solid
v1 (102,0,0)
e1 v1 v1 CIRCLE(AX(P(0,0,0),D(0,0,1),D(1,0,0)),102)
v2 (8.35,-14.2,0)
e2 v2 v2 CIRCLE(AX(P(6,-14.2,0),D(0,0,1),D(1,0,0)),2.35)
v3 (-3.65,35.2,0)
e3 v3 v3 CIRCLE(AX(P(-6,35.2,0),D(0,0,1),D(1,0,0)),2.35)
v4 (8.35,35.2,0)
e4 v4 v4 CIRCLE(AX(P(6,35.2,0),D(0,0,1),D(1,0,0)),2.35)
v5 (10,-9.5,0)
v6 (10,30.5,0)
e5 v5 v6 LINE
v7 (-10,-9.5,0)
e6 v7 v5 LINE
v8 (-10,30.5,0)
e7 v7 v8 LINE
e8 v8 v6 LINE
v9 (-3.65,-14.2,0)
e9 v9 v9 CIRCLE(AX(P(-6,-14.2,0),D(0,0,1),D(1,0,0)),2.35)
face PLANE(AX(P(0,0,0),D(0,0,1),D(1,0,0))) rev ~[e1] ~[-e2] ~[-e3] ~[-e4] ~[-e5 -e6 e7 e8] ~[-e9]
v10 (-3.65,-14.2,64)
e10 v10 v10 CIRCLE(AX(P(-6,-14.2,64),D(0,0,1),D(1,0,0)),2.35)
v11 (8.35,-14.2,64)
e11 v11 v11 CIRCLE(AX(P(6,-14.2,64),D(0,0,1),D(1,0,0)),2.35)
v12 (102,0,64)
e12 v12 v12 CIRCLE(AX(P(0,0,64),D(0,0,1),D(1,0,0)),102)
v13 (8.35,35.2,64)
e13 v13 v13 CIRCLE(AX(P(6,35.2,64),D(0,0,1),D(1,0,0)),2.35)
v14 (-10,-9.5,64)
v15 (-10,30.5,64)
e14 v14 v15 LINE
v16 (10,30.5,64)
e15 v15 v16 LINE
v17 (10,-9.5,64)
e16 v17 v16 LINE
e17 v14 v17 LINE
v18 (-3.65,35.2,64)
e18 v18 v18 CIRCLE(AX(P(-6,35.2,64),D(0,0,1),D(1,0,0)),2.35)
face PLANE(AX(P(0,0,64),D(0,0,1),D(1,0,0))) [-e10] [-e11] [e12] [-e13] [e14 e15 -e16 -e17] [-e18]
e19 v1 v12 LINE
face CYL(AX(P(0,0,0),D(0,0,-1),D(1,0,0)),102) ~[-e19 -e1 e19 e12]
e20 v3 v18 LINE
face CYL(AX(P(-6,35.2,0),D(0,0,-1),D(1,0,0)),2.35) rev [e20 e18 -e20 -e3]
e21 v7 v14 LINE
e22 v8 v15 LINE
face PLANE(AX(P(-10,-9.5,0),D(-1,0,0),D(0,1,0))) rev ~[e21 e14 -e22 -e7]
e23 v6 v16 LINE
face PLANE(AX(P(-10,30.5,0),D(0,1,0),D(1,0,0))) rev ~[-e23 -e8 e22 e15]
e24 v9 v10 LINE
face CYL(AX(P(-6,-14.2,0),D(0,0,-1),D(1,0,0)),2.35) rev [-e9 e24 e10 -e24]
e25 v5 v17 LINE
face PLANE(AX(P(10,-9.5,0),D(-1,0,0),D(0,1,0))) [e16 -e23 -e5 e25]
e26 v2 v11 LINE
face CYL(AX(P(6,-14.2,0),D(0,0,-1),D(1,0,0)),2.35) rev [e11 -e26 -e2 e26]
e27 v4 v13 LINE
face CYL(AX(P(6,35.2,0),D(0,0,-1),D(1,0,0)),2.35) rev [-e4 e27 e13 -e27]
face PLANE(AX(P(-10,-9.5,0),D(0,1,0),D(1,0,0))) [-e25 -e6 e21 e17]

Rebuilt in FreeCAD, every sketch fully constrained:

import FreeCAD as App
import Part
import Sketcher

V = App.Vector

doc = App.newDocument("Part")
params = doc.addObject("Spreadsheet::Sheet", "Params")
for row, (alias, value) in enumerate([
    ("sketch1_diameter", "204 mm"),
    ("sketch1_diameter2", "4.7 mm"),
    ("sketch1_width", "20 mm"),
    ("sketch1_height", "40 mm"),
    ("pad1_length", "64 mm"),
], start=1):
    params.set(f"A{row}", alias)
    params.set(f"B{row}", "=" + value)
    params.setAlias(f"B{row}", alias)

body = doc.addObject("PartDesign::Body", "Body")

# Sketch on XY plane
sketch1 = body.newObject("Sketcher::SketchObject", "Sketch")
sketch1.AttachmentSupport = (doc.getObject("XY_Plane"), [""])
sketch1.MapMode = "FlatFace"
sketch1.addGeometry([
    Part.Circle(V(0, 0, 0), V(0, 0, 1), 102),  # 0
    Part.Circle(V(-6, -14.2, 0), V(0, 0, 1), 2.4),  # 1
    Part.Circle(V(6, -14.2, 0), V(0, 0, 1), 2.4),  # 2
    Part.LineSegment(V(10, -9.5, 0), V(-10, -9.5, 0)),  # 3
    Part.LineSegment(V(-10, -9.5, 0), V(-10, 30.5, 0)),  # 4
    Part.LineSegment(V(-10, 30.5, 0), V(10, 30.5, 0)),  # 5
    Part.LineSegment(V(10, 30.5, 0), V(10, -9.5, 0)),  # 6
    Part.Circle(V(-6, 35.2, 0), V(0, 0, 1), 2.4),  # 7
    Part.Circle(V(6, 35.2, 0), V(0, 0, 1), 2.4),  # 8
], False)
sketch1.addConstraint([
    Sketcher.Constraint("Coincident", 3, 2, 4, 1),
    Sketcher.Constraint("Coincident", 4, 2, 5, 1),
    Sketcher.Constraint("Coincident", 5, 2, 6, 1),
    Sketcher.Constraint("Coincident", 6, 2, 3, 1),
    Sketcher.Constraint("Horizontal", 3),
    Sketcher.Constraint("Vertical", 4),
    Sketcher.Constraint("Horizontal", 5),
    Sketcher.Constraint("Vertical", 6),
    Sketcher.Constraint("Coincident", 0, 3, -1, 1),
    Sketcher.Constraint("Equal", 1, 2),
    Sketcher.Constraint("Equal", 2, 7),
    Sketcher.Constraint("Equal", 7, 8),
    Sketcher.Constraint("Symmetric", 1, 3, 2, 3, -2),
    Sketcher.Constraint("Symmetric", 7, 3, 8, 3, -2),
    Sketcher.Constraint("Vertical", 1, 3, 7, 3),
    Sketcher.Constraint("Diameter", 0, 204.0),
    Sketcher.Constraint("Diameter", 1, 4.7),
    Sketcher.Constraint("DistanceX", 3, 2, 3, 1, 20.0),
    Sketcher.Constraint("DistanceY", 4, 1, 4, 2, 40.0),
    Sketcher.Constraint("DistanceX", 1, 3, -1, 1, 6.0),
    Sketcher.Constraint("DistanceX", 3, 2, -1, 1, 10.0),
    Sketcher.Constraint("DistanceY", 1, 3, -1, 1, 14.2),
    Sketcher.Constraint("DistanceY", -1, 1, 7, 3, 35.2),
    Sketcher.Constraint("DistanceY", 3, 2, -1, 1, 9.5),
])
sketch1.setExpression("Constraints[15]", "Params.sketch1_diameter")
sketch1.setExpression("Constraints[16]", "Params.sketch1_diameter2")
sketch1.setExpression("Constraints[17]", "Params.sketch1_width")
sketch1.setExpression("Constraints[18]", "Params.sketch1_height")
pad1 = body.newObject("PartDesign::Pad", "Pad")
pad1.Profile = sketch1
pad1.setExpression("Length", "Params.pad1_length")

doc.recompute()
